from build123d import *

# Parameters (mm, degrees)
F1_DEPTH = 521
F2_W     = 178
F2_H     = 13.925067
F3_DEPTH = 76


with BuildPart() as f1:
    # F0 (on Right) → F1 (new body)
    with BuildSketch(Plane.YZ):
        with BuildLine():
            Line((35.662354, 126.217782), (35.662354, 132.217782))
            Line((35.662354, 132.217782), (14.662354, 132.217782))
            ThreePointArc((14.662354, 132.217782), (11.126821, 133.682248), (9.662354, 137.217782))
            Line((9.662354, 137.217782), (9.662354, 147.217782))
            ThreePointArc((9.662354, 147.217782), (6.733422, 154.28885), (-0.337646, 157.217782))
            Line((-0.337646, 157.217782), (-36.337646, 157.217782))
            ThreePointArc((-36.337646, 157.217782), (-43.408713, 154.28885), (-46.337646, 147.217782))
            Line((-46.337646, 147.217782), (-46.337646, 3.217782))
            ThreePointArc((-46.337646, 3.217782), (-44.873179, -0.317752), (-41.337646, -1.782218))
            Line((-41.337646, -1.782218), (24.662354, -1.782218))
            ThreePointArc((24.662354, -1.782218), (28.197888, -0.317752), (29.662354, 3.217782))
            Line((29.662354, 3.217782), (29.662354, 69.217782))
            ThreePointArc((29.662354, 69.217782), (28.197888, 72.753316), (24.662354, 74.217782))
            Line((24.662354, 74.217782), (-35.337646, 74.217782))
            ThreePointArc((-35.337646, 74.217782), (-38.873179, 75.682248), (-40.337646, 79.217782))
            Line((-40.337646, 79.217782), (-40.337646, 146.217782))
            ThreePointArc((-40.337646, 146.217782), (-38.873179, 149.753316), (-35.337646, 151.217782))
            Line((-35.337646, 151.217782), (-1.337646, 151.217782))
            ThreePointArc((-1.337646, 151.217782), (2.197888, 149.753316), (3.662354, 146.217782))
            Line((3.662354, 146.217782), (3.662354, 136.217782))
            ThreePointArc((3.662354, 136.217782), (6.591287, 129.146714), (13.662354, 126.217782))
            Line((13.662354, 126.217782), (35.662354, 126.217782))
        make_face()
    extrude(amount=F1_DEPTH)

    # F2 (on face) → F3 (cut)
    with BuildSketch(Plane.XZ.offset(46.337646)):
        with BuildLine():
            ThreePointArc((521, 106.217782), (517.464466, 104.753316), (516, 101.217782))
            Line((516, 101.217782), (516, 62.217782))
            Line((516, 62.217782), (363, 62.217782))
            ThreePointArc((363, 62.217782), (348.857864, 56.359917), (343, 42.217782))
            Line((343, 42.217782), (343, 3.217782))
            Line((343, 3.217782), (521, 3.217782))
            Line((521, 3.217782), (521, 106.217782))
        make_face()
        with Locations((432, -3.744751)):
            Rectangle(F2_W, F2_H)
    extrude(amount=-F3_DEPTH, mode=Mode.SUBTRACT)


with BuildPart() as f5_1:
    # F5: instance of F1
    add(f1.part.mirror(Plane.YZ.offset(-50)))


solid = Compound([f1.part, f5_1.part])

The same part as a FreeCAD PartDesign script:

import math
import FreeCAD as App
import Part
import Sketcher
from FreeCAD import Vector

doc = App.newDocument("Part")
body = doc.addObject("PartDesign::Body", "Body")

# Sketch on YZ plane
sketch1 = body.newObject("Sketcher::SketchObject", "Sketch")
sketch1.AttachmentSupport = (doc.getObject("YZ_Plane"), [""])
sketch1.MapMode = "FlatFace"
sketch1.addGeometry(Part.LineSegment(Vector(35.662354, 126.217782, 0), Vector(35.662354, 132.217782, 0)), False)
sketch1.addGeometry(Part.LineSegment(Vector(35.662354, 132.217782, 0), Vector(14.662354, 132.217782, 0)), False)
sketch1.addGeometry(Part.ArcOfCircle(Part.Circle(Vector(14.662355, 137.217783, 0), Vector(0, 0, 1), 5.000001), math.radians(-179.999984), math.radians(-90.000016)), False)
sketch1.addGeometry(Part.LineSegment(Vector(9.662354, 137.217782, 0), Vector(9.662354, 147.217782, 0)), False)
sketch1.addGeometry(Part.ArcOfCircle(Part.Circle(Vector(-0.337645, 147.217783, 0), Vector(0, 0, 1), 9.999999), math.radians(-0.000004), math.radians(90.000004)), False)
sketch1.addGeometry(Part.LineSegment(Vector(-0.337646, 157.217782, 0), Vector(-36.337646, 157.217782, 0)), False)
sketch1.addGeometry(Part.ArcOfCircle(Part.Circle(Vector(-36.337645, 147.217781, 0), Vector(0, 0, 1), 10.000001), math.radians(90.000006), math.radians(179.999994)), False)
sketch1.addGeometry(Part.LineSegment(Vector(-46.337646, 147.217782, 0), Vector(-46.337646, 3.217782, 0)), False)
sketch1.addGeometry(Part.ArcOfCircle(Part.Circle(Vector(-41.337645, 3.217783, 0), Vector(0, 0, 1), 5.000001), math.radians(-179.999984), math.radians(-90.000016)), False)
sketch1.addGeometry(Part.LineSegment(Vector(-41.337646, -1.782218, 0), Vector(24.662354, -1.782218, 0)), False)
sketch1.addGeometry(Part.ArcOfCircle(Part.Circle(Vector(24.662354, 3.217782, 0), Vector(0, 0, 1), 5), math.radians(-90.000004), math.radians(0.000004)), False)
sketch1.addGeometry(Part.LineSegment(Vector(29.662354, 3.217782, 0), Vector(29.662354, 69.217782, 0)), False)
sketch1.addGeometry(Part.ArcOfCircle(Part.Circle(Vector(24.662354, 69.217782, 0), Vector(0, 0, 1), 5), math.radians(-0.000004), math.radians(90.000004)), False)
sketch1.addGeometry(Part.LineSegment(Vector(24.662354, 74.217782, 0), Vector(-35.337646, 74.217782, 0)), False)
sketch1.addGeometry(Part.ArcOfCircle(Part.Circle(Vector(-35.337645, 79.217783, 0), Vector(0, 0, 1), 5.000001), math.radians(-179.999984), math.radians(-90.000016)), False)
sketch1.addGeometry(Part.LineSegment(Vector(-40.337646, 79.217782, 0), Vector(-40.337646, 146.217782, 0)), False)
sketch1.addGeometry(Part.ArcOfCircle(Part.Circle(Vector(-35.337645, 146.217781, 0), Vector(0, 0, 1), 5.000001), math.radians(90.000016), math.radians(179.999984)), False)
sketch1.addGeometry(Part.LineSegment(Vector(-35.337646, 151.217782, 0), Vector(-1.337646, 151.217782, 0)), False)
sketch1.addGeometry(Part.ArcOfCircle(Part.Circle(Vector(-1.337646, 146.217782, 0), Vector(0, 0, 1), 5), math.radians(-0.000004), math.radians(90.000004)), False)
sketch1.addGeometry(Part.LineSegment(Vector(3.662354, 146.217782, 0), Vector(3.662354, 136.217782, 0)), False)
sketch1.addGeometry(Part.ArcOfCircle(Part.Circle(Vector(13.662355, 136.217783, 0), Vector(0, 0, 1), 10.000001), math.radians(-179.999994), math.radians(-90.000006)), False)
sketch1.addGeometry(Part.LineSegment(Vector(13.662354, 126.217782, 0), Vector(35.662354, 126.217782, 0)), False)
sketch1.addConstraint(Sketcher.Constraint("Coincident", 0, 2, 1, 1))
sketch1.addConstraint(Sketcher.Constraint("Tangent", 1, 2, 2, 2))
sketch1.addConstraint(Sketcher.Constraint("Tangent", 2, 1, 3, 1))
sketch1.addConstraint(Sketcher.Constraint("Tangent", 3, 2, 4, 1))
sketch1.addConstraint(Sketcher.Constraint("Tangent", 4, 2, 5, 1))
sketch1.addConstraint(Sketcher.Constraint("Tangent", 5, 2, 6, 1))
sketch1.addConstraint(Sketcher.Constraint("Tangent", 6, 2, 7, 1))
sketch1.addConstraint(Sketcher.Constraint("Tangent", 7, 2, 8, 1))
sketch1.addConstraint(Sketcher.Constraint("Tangent", 8, 2, 9, 1))
sketch1.addConstraint(Sketcher.Constraint("Tangent", 9, 2, 10, 1))
sketch1.addConstraint(Sketcher.Constraint("Tangent", 10, 2, 11, 1))
sketch1.addConstraint(Sketcher.Constraint("Tangent", 11, 2, 12, 1))
sketch1.addConstraint(Sketcher.Constraint("Tangent", 12, 2, 13, 1))
sketch1.addConstraint(Sketcher.Constraint("Tangent", 13, 2, 14, 2))
sketch1.addConstraint(Sketcher.Constraint("Tangent", 14, 1, 15, 1))
sketch1.addConstraint(Sketcher.Constraint("Tangent", 15, 2, 16, 2))
sketch1.addConstraint(Sketcher.Constraint("Tangent", 16, 1, 17, 1))
sketch1.addConstraint(Sketcher.Constraint("Tangent", 17, 2, 18, 2))
sketch1.addConstraint(Sketcher.Constraint("Tangent", 18, 1, 19, 1))
sketch1.addConstraint(Sketcher.Constraint("Tangent", 19, 2, 20, 1))
sketch1.addConstraint(Sketcher.Constraint("Tangent", 20, 2, 21, 1))
sketch1.addConstraint(Sketcher.Constraint("Coincident", 21, 2, 0, 1))
sketch1.addConstraint(Sketcher.Constraint("Vertical", 0))
sketch1.addConstraint(Sketcher.Constraint("Horizontal", 1))
sketch1.addConstraint(Sketcher.Constraint("Vertical", 3))
sketch1.addConstraint(Sketcher.Constraint("Horizontal", 5))
sketch1.addConstraint(Sketcher.Constraint("Vertical", 7))
sketch1.addConstraint(Sketcher.Constraint("Horizontal", 9))
sketch1.addConstraint(Sketcher.Constraint("Vertical", 11))
sketch1.addConstraint(Sketcher.Constraint("Horizontal", 13))
sketch1.addConstraint(Sketcher.Constraint("Vertical", 15))
sketch1.addConstraint(Sketcher.Constraint("Horizontal", 17))
sketch1.addConstraint(Sketcher.Constraint("Vertical", 19))
sketch1.addConstraint(Sketcher.Constraint("Horizontal", 21))
sketch1.addConstraint(Sketcher.Constraint("Equal", 4, 6))
sketch1.addConstraint(Sketcher.Constraint("Equal", 2, 8))
sketch1.addConstraint(Sketcher.Constraint("Equal", 8, 10))
sketch1.addConstraint(Sketcher.Constraint("Equal", 10, 12))
sketch1.addConstraint(Sketcher.Constraint("Equal", 12, 14))
sketch1.addConstraint(Sketcher.Constraint("Equal", 14, 16))
sketch1.addConstraint(Sketcher.Constraint("Equal", 16, 18))
sketch1.addConstraint(Sketcher.Constraint("Equal", 6, 20))
sketch1.addConstraint(Sketcher.Constraint("Equal", 9, 11))
sketch1.addConstraint(Sketcher.Constraint("Equal", 3, 19))
sketch1.addConstraint(Sketcher.Constraint("Radius", 2, 5.000001))
sketch1.addConstraint(Sketcher.Constraint("Radius", 4, 9.999999))
sketch1.addConstraint(Sketcher.Constraint("DistanceX", 1, 2, 1, 1, 21.0))
sketch1.addConstraint(Sketcher.Constraint("DistanceX", 5, 2, 5, 1, 36.0))
sketch1.addConstraint(Sketcher.Constraint("DistanceX", 9, 1, 9, 2, 66.0))
sketch1.addConstraint(Sketcher.Constraint("DistanceX", 13, 2, 13, 1, 60.0))
sketch1.addConstraint(Sketcher.Constraint("DistanceX", 17, 1, 17, 2, 34.0))
sketch1.addConstraint(Sketcher.Constraint("DistanceY", 0, 1, 0, 2, 6.0))
sketch1.addConstraint(Sketcher.Constraint("DistanceY", 3, 1, 3, 2, 10.0))
sketch1.addConstraint(Sketcher.Constraint("DistanceY", 7, 2, 7, 1, 144.0))
sketch1.addConstraint(Sketcher.Constraint("DistanceY", -1, 1, 6, 3, 147.217781))
sketch1.addConstraint(Sketcher.Constraint("DistanceX", -1, 1, 2, 3, 14.662355))
pad1 = body.newObject("PartDesign::Pad", "Pad")
pad1.Profile = sketch1
pad1.Length = 521

# Sketch on XZ plane
sketch2 = body.newObject("Sketcher::SketchObject", "Sketch001")
sketch2.AttachmentSupport = (doc.getObject("XZ_Plane"), [""])
sketch2.MapMode = "FlatFace"
sketch2.AttachmentOffset = App.Placement(Vector(0, 0, 46.337646), App.Rotation())
sketch2.addGeometry(Part.ArcOfCircle(Part.Circle(Vector(521, 101.217782, 0), Vector(0, 0, 1), 5), math.radians(89.999996), math.radians(180.000004)), False)
sketch2.addGeometry(Part.LineSegment(Vector(516, 101.217782, 0), Vector(516, 62.217782, 0)), False)
sketch2.addGeometry(Part.LineSegment(Vector(516, 62.217782, 0), Vector(363, 62.217782, 0)), False)
sketch2.addGeometry(Part.ArcOfCircle(Part.Circle(Vector(363, 42.217782, 0), Vector(0, 0, 1), 20), math.radians(90.000001), math.radians(179.999999)), False)
sketch2.addGeometry(Part.LineSegment(Vector(343, 42.217782, 0), Vector(343, -10.707285, 0)), False)
sketch2.addGeometry(Part.LineSegment(Vector(343, -10.707285, 0), Vector(521, -10.707285, 0)), False)
sketch2.addGeometry(Part.LineSegment(Vector(521, -10.707285, 0), Vector(521, 106.217782, 0)), False)
sketch2.addConstraint(Sketcher.Constraint("Tangent", 0, 2, 1, 1))
sketch2.addConstraint(Sketcher.Constraint("Coincident", 1, 2, 2, 1))
sketch2.addConstraint(Sketcher.Constraint("Tangent", 2, 2, 3, 1))
sketch2.addConstraint(Sketcher.Constraint("Tangent", 3, 2, 4, 1))
sketch2.addConstraint(Sketcher.Constraint("Coincident", 4, 2, 5, 1))
sketch2.addConstraint(Sketcher.Constraint("Coincident", 5, 2, 6, 1))
sketch2.addConstraint(Sketcher.Constraint("Coincident", 6, 2, 0, 1))
sketch2.addConstraint(Sketcher.Constraint("Vertical", 1))
sketch2.addConstraint(Sketcher.Constraint("Horizontal", 2))
sketch2.addConstraint(Sketcher.Constraint("Vertical", 4))
sketch2.addConstraint(Sketcher.Constraint("Horizontal", 5))
sketch2.addConstraint(Sketcher.Constraint("Vertical", 6))
sketch2.addConstraint(Sketcher.Constraint("Vertical", 0, 3, 5, 2))
sketch2.addConstraint(Sketcher.Constraint("Radius", 0, 5.0))
sketch2.addConstraint(Sketcher.Constraint("Radius", 3, 20.0))
sketch2.addConstraint(Sketcher.Constraint("DistanceX", 2, 2, 2, 1, 153.0))
sketch2.addConstraint(Sketcher.Constraint("DistanceY", 1, 2, 1, 1, 39.0))
sketch2.addConstraint(Sketcher.Constraint("DistanceX", -1, 1, 0, 3, 521.0))
sketch2.addConstraint(Sketcher.Constraint("DistanceY", 4, 2, 4, 1, 52.925066))
sketch2.addConstraint(Sketcher.Constraint("DistanceY", -1, 1, 3, 3, 42.217782))
pocket1 = body.newObject("PartDesign::Pocket", "Pocket")
pocket1.Profile = sketch2
pocket1.Length = 76
body2 = doc.addObject("PartDesign::Body", "Body001")
doc.recompute()

mirroring = doc.addObject("Part::Mirroring", "Mirroring")
mirroring.Source = body
mirroring.Base = Vector(-50, 0, 0)
mirroring.Normal = Vector(1, 0, 0)
body2.BaseFeature = mirroring
doc.recompute()
mirroring.Visibility = False

doc.recompute()
